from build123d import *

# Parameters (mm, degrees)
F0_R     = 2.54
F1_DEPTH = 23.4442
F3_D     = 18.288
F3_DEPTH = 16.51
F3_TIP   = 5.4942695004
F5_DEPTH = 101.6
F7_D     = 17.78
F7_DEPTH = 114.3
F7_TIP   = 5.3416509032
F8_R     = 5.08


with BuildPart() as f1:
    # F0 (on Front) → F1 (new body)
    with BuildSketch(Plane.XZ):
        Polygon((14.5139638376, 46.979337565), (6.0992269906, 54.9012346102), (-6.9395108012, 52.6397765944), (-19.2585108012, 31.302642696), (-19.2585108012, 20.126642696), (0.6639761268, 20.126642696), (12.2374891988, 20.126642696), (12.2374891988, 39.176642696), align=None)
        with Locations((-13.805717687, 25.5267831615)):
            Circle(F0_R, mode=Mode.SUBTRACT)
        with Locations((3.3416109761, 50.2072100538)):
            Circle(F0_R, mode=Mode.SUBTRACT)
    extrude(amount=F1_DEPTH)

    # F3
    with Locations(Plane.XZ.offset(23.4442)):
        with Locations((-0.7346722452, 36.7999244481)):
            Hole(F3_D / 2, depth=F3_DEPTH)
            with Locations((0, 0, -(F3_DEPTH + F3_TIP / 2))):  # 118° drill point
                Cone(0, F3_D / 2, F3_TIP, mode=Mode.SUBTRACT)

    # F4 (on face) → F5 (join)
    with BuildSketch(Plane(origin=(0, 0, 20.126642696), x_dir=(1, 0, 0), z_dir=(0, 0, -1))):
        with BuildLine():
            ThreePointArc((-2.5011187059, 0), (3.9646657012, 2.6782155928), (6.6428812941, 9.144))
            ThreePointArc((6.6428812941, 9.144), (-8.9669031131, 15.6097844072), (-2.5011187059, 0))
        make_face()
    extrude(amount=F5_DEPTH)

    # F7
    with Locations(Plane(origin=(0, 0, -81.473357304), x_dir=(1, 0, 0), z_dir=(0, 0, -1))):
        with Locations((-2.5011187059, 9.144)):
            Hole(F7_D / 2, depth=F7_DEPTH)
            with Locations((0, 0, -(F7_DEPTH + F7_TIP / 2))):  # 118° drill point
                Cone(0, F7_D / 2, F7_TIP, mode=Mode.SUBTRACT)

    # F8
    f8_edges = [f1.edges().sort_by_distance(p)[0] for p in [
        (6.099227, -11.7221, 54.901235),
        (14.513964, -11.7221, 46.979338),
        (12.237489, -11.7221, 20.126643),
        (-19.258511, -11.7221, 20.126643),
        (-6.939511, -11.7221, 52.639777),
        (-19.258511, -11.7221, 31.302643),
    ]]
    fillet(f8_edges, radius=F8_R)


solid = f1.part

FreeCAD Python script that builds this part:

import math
import FreeCAD as App
import Part
import Sketcher

V = App.Vector
Q = App.Units.Quantity


def edges_at(feature, points):
    """Names of the edges that pass closest to the given points."""
    edges = feature.Shape.Edges
    near = lambda p: min(range(len(edges)), key=lambda i: edges[i].distToShape(Part.Vertex(*p))[0])
    return sorted({f"Edge{near(p) + 1}" for p in points})

doc = App.newDocument("Part")
params = doc.addObject("Spreadsheet::Sheet", "Params")
for row, (alias, value) in enumerate([
    ("sketch1_diameter", "0.2 in"),
    ("sketch1_width", "1.24 in"),
    ("sketch1_height", "0.44 in"),
    ("sketch1_height2", "0.75 in"),
    ("sketch1_length", "0.97 in"),
    ("pad1_length", "0.923 in"),
    ("sketch2_diameter", "0.72 in"),
    ("hole_diameter", "0.72 in"),
    ("hole_depth", "0.65 in"),
    ("sketch3_radius", "0.36 in"),
    ("pad2_length", "4 in"),
    ("sketch4_diameter", "0.7 in"),
    ("hole2_diameter", "0.7 in"),
    ("hole2_depth", "4.5 in"),
    ("fillet_radius", "0.2 in"),
], start=1):
    params.set(f"A{row}", alias)
    params.set(f"B{row}", "=" + value)
    params.setAlias(f"B{row}", alias)

body = doc.addObject("PartDesign::Body", "Body")

sketch1 = body.newObject("Sketcher::SketchObject", "Sketch")
sketch1.AttachmentSupport = (doc.getObject("XZ_Plane"), [""])
sketch1.MapMode = "FlatFace"
sketch1.addGeometry(Part.LineSegment(V(14.5, 47, 0), V(6.1, 54.9, 0)), False)
sketch1.addGeometry(Part.LineSegment(V(6.1, 54.9, 0), V(-6.9, 52.6, 0)), False)
sketch1.addGeometry(Part.LineSegment(V(-6.9, 52.6, 0), V(-19.3, 31.3, 0)), False)
sketch1.addGeometry(Part.LineSegment(V(-19.3, 31.3, 0), V(-19.3, 20.1, 0)), False)
sketch1.addGeometry(Part.LineSegment(V(-19.3, 20.1, 0), V(12.2, 20.1, 0)), False)
sketch1.addGeometry(Part.LineSegment(V(12.2, 20.1, 0), V(12.2, 39.2, 0)), False)
sketch1.addGeometry(Part.LineSegment(V(12.2, 39.2, 0), V(14.5, 47, 0)), False)
sketch1.addGeometry(Part.Circle(V(-13.8, 25.5, 0), V(0, 0, 1), 2.5), False)
sketch1.addGeometry(Part.Circle(V(3.3, 50.2, 0), V(0, 0, 1), 2.5), False)
sketch1.addConstraint(Sketcher.Constraint("Coincident", 0, 2, 1, 1))
sketch1.addConstraint(Sketcher.Constraint("Coincident", 1, 2, 2, 1))
sketch1.addConstraint(Sketcher.Constraint("Coincident", 2, 2, 3, 1))
sketch1.addConstraint(Sketcher.Constraint("Coincident", 3, 2, 4, 1))
sketch1.addConstraint(Sketcher.Constraint("Coincident", 4, 2, 5, 1))
sketch1.addConstraint(Sketcher.Constraint("Coincident", 5, 2, 6, 1))
sketch1.addConstraint(Sketcher.Constraint("Coincident", 6, 2, 0, 1))
sketch1.addConstraint(Sketcher.Constraint("Vertical", 3))
sketch1.addConstraint(Sketcher.Constraint("Horizontal", 4))
sketch1.addConstraint(Sketcher.Constraint("Vertical", 5))
sketch1.addConstraint(Sketcher.Constraint("Equal", 7, 8))
sketch1.addConstraint(Sketcher.Constraint("Diameter", 7, Q("0.2 in")))
sketch1.addConstraint(Sketcher.Constraint("Angle", 2, Q("-120 deg")))
sketch1.addConstraint(Sketcher.Constraint("DistanceX", 4, 1, 4, 2, Q("1.24 in")))
sketch1.addConstraint(Sketcher.Constraint("DistanceY", 3, 2, 3, 1, Q("0.44 in")))
sketch1.addConstraint(Sketcher.Constraint("DistanceY", 5, 1, 5, 2, Q("0.75 in")))
sketch1.addConstraint(Sketcher.Constraint("Distance", 2, Q("0.97 in")))
sketch1.addConstraint(Sketcher.Constraint("Distance", 6, Q("0.32 in")))
sketch1.addConstraint(Sketcher.Constraint("Distance", 0, Q("0.455 in")))
sketch1.addConstraint(Sketcher.Constraint("Distance", 1, Q("0.521 in")))
sketch1.addConstraint(Sketcher.Constraint("DistanceX", -1, 1, 8, 3, Q("3.341611 mm")))
sketch1.addConstraint(Sketcher.Constraint("DistanceY", -1, 1, 8, 3, Q("50.20721 mm")))
sketch1.addConstraint(Sketcher.Constraint("DistanceX", 1, 2, -1, 1, Q("6.939511 mm")))
sketch1.addConstraint(Sketcher.Constraint("DistanceX", 7, 3, 8, 3, Q("17.147329 mm")))
sketch1.addConstraint(Sketcher.Constraint("DistanceY", 7, 3, 0, 2, Q("29.374451 mm")))
sketch1.addConstraint(Sketcher.Constraint("DistanceY", 1, 2, 0, 2, Q("2.261458 mm")))
sketch1.addConstraint(Sketcher.Constraint("DistanceY", -1, 1, 7, 3, Q("25.526783 mm")))
sketch1.setExpression("Constraints[11]", "Params.sketch1_diameter")
sketch1.setExpression("Constraints[13]", "Params.sketch1_width")
sketch1.setExpression("Constraints[14]", "Params.sketch1_height")
sketch1.setExpression("Constraints[15]", "Params.sketch1_height2")
sketch1.setExpression("Constraints[16]", "Params.sketch1_length")
pad1 = body.newObject("PartDesign::Pad", "Pad")
pad1.Profile = sketch1
pad1.setExpression("Length", "Params.pad1_length")

sketch2 = body.newObject("Sketcher::SketchObject", "Sketch001")
sketch2.AttachmentSupport = (doc.getObject("XZ_Plane"), [""])
sketch2.MapMode = "FlatFace"
sketch2.AttachmentOffset = App.Placement(V(0, 0, 0.923 * 25.4), App.Rotation())
sketch2.addGeometry(Part.Circle(V(-1, 37, 0), V(0, 0, 1), 9), False)
sketch2.addConstraint(Sketcher.Constraint("Diameter", 0, Q("0.72 in")))
sketch2.addConstraint(Sketcher.Constraint("DistanceX", 0, 3, -1, 1, Q("0.734672 mm")))
sketch2.addConstraint(Sketcher.Constraint("DistanceY", -1, 1, 0, 3, Q("36.799924 mm")))
sketch2.setExpression("Constraints[0]", "Params.sketch2_diameter")
doc.recompute()
hole = body.newObject("PartDesign::Hole", "Hole")
hole.Profile = sketch2
hole.ThreadType = "None"
hole.setExpression("Diameter", "Params.hole_diameter")
hole.DepthType = "Dimension"
hole.setExpression("Depth", "Params.hole_depth")
hole.DrillPoint = "Angled"
hole.DrillPointAngle = 118

sketch3 = body.newObject("Sketcher::SketchObject", "Sketch002")
sketch3.AttachmentSupport = (doc.getObject("XY_Plane"), [""])
sketch3.MapMode = "FlatFace"
sketch3.AttachmentOffset = App.Placement(V(0, 0, 20.126643), App.Rotation())
sketch3.addGeometry(Part.ArcOfCircle(Part.Circle(V(-3, -9, 0), V(0, 0, 1), 9), math.radians(0), math.radians(90)), False)
sketch3.addGeometry(Part.ArcOfCircle(Part.Circle(V(-3, -9, 0), V(0, 0, 1), 9), math.radians(90), math.radians(360)), False)
sketch3.addConstraint(Sketcher.Constraint("Tangent", 0, 1, 1, 2))
sketch3.addConstraint(Sketcher.Constraint("Coincident", 1, 1, 0, 2))
sketch3.addConstraint(Sketcher.Constraint("PointOnObject", 1, 1, -1))
sketch3.addConstraint(Sketcher.Constraint("Horizontal", 1, 3, 0, 1))
sketch3.addConstraint(Sketcher.Constraint("Vertical", 0, 3, 1, 1))
sketch3.addConstraint(Sketcher.Constraint("Radius", 0, Q("0.36 in")))
sketch3.addConstraint(Sketcher.Constraint("DistanceX", 0, 3, -1, 1, Q("2.501119 mm")))
sketch3.setExpression("Constraints[5]", "Params.sketch3_radius")
pad2 = body.newObject("PartDesign::Pad", "Pad001")
pad2.Profile = sketch3
pad2.setExpression("Length", "Params.pad2_length")
pad2.Reversed = True

sketch4 = body.newObject("Sketcher::SketchObject", "Sketch003")
sketch4.AttachmentSupport = (doc.getObject("XY_Plane"), [""])
sketch4.MapMode = "FlatFace"
sketch4.AttachmentOffset = App.Placement(V(0, 0, -81.473357), App.Rotation())
sketch4.addGeometry(Part.Circle(V(-3, -9, 0), V(0, 0, 1), 9), False)
sketch4.addConstraint(Sketcher.Constraint("Diameter", 0, Q("0.7 in")))
sketch4.addConstraint(Sketcher.Constraint("DistanceY", 0, 3, -1, 1, Q("0.36 in")))
sketch4.addConstraint(Sketcher.Constraint("DistanceX", 0, 3, -1, 1, Q("2.501119 mm")))
sketch4.setExpression("Constraints[0]", "Params.sketch4_diameter")
doc.recompute()
hole2 = body.newObject("PartDesign::Hole", "Hole001")
hole2.Profile = sketch4
hole2.ThreadType = "None"
hole2.setExpression("Diameter", "Params.hole2_diameter")
hole2.DepthType = "Dimension"
hole2.setExpression("Depth", "Params.hole2_depth")
hole2.DrillPoint = "Angled"
hole2.DrillPointAngle = 118
hole2.Reversed = True
doc.recompute()

fillet = body.newObject("PartDesign::Fillet", "Fillet")
fillet.Base = (hole2, edges_at(hole2, [
    (6.099, -11.722, 54.901),
    (14.514, -11.722, 46.979),
    (12.237, -11.722, 20.127),
    (-19.259, -11.722, 20.127),
    (-6.94, -11.722, 52.64),
    (-19.259, -11.722, 31.303),
]))
fillet.setExpression("Radius", "Params.fillet_radius")

doc.recompute()
